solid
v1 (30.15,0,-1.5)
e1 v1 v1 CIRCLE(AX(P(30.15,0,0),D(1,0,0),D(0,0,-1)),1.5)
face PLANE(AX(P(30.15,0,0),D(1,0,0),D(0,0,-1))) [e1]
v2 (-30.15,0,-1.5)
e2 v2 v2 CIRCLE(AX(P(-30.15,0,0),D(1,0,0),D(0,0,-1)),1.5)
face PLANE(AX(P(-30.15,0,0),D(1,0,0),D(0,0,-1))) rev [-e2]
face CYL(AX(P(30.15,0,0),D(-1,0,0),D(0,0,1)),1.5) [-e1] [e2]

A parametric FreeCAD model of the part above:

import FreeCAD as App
import Part
import Sketcher

V = App.Vector

doc = App.newDocument("Part")
params = doc.addObject("Spreadsheet::Sheet", "Params")
for row, (alias, value) in enumerate([
    ("sketch1_diameter", "3 mm"),
    ("pad1_length", "60.3 mm"),
], start=1):
    params.set(f"A{row}", alias)
    params.set(f"B{row}", "=" + value)
    params.setAlias(f"B{row}", alias)

body = doc.addObject("PartDesign::Body", "Body")

# Sketch on YZ plane
sketch1 = body.newObject("Sketcher::SketchObject", "Sketch")
sketch1.AttachmentSupport = (doc.getObject("YZ_Plane"), [""])
sketch1.MapMode = "FlatFace"
sketch1.addGeometry(Part.Circle(V(0, 0, 0), V(0, 0, 1), 1.5), False)
sketch1.addConstraint(Sketcher.Constraint("Coincident", 0, 3, -1, 1))
sketch1.addConstraint(Sketcher.Constraint("Diameter", 0, 3.0))
sketch1.setExpression("Constraints[1]", "Params.sketch1_diameter")
pad1 = body.newObject("PartDesign::Pad", "Pad")
pad1.Profile = sketch1
pad1.setExpression("Length", "Params.pad1_length")
pad1.Midplane = True

doc.recompute()
